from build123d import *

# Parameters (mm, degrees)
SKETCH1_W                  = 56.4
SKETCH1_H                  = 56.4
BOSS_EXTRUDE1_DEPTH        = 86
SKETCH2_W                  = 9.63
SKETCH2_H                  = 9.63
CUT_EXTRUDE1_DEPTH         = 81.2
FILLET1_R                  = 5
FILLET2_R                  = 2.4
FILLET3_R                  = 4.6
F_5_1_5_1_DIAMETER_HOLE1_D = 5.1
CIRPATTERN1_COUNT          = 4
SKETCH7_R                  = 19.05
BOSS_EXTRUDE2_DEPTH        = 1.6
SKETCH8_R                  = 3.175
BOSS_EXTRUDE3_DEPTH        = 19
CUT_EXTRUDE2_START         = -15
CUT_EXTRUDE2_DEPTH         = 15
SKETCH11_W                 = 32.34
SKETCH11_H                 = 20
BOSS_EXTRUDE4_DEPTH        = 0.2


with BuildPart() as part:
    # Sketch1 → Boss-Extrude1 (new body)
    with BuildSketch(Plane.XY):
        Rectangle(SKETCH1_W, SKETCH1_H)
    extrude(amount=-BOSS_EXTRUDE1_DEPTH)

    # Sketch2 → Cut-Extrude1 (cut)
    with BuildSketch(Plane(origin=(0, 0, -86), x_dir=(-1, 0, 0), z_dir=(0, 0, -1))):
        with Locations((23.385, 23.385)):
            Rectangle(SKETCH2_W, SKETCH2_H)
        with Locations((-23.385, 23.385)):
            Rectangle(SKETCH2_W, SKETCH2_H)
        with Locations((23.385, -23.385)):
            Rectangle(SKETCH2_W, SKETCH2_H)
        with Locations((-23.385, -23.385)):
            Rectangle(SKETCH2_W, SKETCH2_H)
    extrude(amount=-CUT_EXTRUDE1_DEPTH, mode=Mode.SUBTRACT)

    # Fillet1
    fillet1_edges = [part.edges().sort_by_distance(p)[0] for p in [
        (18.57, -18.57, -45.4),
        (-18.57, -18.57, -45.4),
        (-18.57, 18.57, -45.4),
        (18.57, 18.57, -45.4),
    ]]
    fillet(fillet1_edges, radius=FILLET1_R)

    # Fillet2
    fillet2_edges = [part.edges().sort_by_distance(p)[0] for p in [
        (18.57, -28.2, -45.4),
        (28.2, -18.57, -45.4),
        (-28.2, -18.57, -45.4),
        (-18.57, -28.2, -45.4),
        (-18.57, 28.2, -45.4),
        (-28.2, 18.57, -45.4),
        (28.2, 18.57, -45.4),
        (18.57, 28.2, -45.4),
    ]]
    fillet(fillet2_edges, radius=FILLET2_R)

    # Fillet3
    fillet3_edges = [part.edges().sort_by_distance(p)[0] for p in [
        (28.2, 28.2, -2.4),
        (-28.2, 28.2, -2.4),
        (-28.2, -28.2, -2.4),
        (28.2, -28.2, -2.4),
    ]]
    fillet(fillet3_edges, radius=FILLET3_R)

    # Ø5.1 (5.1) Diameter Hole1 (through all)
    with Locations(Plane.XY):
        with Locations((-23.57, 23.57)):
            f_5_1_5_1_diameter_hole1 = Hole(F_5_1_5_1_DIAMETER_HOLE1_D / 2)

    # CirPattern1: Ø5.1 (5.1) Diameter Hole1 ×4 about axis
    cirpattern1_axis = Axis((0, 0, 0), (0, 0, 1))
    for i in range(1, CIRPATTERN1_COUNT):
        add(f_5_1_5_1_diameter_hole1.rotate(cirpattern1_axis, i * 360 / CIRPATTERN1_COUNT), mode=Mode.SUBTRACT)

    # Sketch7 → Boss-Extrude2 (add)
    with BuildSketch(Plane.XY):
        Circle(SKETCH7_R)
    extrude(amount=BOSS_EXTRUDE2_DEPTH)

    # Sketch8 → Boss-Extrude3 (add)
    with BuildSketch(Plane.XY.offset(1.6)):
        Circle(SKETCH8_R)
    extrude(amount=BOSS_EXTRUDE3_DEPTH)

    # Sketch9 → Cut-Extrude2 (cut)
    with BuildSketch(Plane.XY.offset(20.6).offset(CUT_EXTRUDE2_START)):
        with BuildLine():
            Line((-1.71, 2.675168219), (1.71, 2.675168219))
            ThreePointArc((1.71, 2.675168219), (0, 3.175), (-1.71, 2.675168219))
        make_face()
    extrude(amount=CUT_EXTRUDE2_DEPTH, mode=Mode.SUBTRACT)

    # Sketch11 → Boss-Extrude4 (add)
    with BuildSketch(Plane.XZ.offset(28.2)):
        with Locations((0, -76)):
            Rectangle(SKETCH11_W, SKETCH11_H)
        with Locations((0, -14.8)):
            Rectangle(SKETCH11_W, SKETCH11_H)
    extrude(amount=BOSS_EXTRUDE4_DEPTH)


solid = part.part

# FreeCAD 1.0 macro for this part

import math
import FreeCAD as App
import Part
import Sketcher

V = App.Vector
Q = App.Units.Quantity


def edges_at(feature, points):
    """Names of the edges that pass closest to the given points."""
    edges = feature.Shape.Edges
    near = lambda p: min(range(len(edges)), key=lambda i: edges[i].distToShape(Part.Vertex(*p))[0])
    return sorted({f"Edge{near(p) + 1}" for p in points})


def add_polygon(sketch, points):
    """Adds a closed chain of lines whose ends are joined by coincident constraints."""
    first, n = sketch.GeometryCount, len(points)
    for a, b in zip(points, points[1:] + points[:1]):
        sketch.addGeometry(Part.LineSegment(App.Vector(*a, 0), App.Vector(*b, 0)), False)
    for i in range(n):
        sketch.addConstraint(Sketcher.Constraint("Coincident", first + i, 2, first + (i + 1) % n, 1))

doc = App.newDocument("Part")
params = doc.addObject("Spreadsheet::Sheet", "Params")
for row, (alias, value) in enumerate([
    ("sketch1_width", "56.4 mm"),
    ("pad1_length", "86 mm"),
    ("sketch2_width", "9.63 mm"),
    ("pocket1_length", "81.2 mm"),
    ("fillet_radius", "5 mm"),
    ("fillet2_radius", "2.4 mm"),
    ("fillet3_radius", "4.6 mm"),
    ("sketch3_diameter", "5.1 mm"),
    ("hole_diameter", "5.1 mm"),
    ("sketch4_diameter", "38.1 mm"),
    ("pad2_length", "1.6 mm"),
    ("sketch5_diameter", "6.35 mm"),
    ("pad3_length", "19 mm"),
    ("sketch6_width", "3.42 mm"),
    ("pocket2_length", "15 mm"),
    ("sketch7_height", "20 mm"),
    ("sketch7_width", "32.34 mm"),
    ("pad4_length", "0.2 mm"),
], start=1):
    params.set(f"A{row}", alias)
    params.set(f"B{row}", "=" + value)
    params.setAlias(f"B{row}", alias)

body = doc.addObject("PartDesign::Body", "Body")

sketch1 = body.newObject("Sketcher::SketchObject", "Sketch")
sketch1.AttachmentSupport = (doc.getObject("XY_Plane"), [""])
sketch1.MapMode = "FlatFace"
add_polygon(sketch1, [(-28, 28), (-28, -28), (28, -28), (28, 28)])
sketch1.addConstraint(Sketcher.Constraint("Vertical", 0))
sketch1.addConstraint(Sketcher.Constraint("Horizontal", 1))
sketch1.addConstraint(Sketcher.Constraint("Vertical", 2))
sketch1.addConstraint(Sketcher.Constraint("Horizontal", 3))
sketch1.addConstraint(Sketcher.Constraint("Symmetric", 0, 2, 2, 2, -1, 1))
sketch1.addConstraint(Sketcher.Constraint("Equal", 3, 0))
sketch1.addConstraint(Sketcher.Constraint("DistanceX", 1, 1, 1, 2, Q("56.4 mm")))
sketch1.setExpression("Constraints[10]", "Params.sketch1_width")
pad1 = body.newObject("PartDesign::Pad", "Pad")
pad1.Profile = sketch1
pad1.setExpression("Length", "Params.pad1_length")
pad1.Reversed = True

sketch2 = body.newObject("Sketcher::SketchObject", "Sketch001")
sketch2.AttachmentSupport = (doc.getObject("XY_Plane"), [""])
sketch2.MapMode = "FlatFace"
sketch2.AttachmentOffset = App.Placement(V(0, 0, -86), App.Rotation())
add_polygon(sketch2, [(-19, 28), (-19, 19), (-28, 19), (-28, 28)])
add_polygon(sketch2, [(28, 28), (28, 19), (19, 19), (19, 28)])
add_polygon(sketch2, [(-19, -19), (-19, -28), (-28, -28), (-28, -19)])
add_polygon(sketch2, [(28, -19), (28, -28), (19, -28), (19, -19)])
sketch2.addConstraint(Sketcher.Constraint("Vertical", 0))
sketch2.addConstraint(Sketcher.Constraint("Horizontal", 1))
sketch2.addConstraint(Sketcher.Constraint("Vertical", 2))
sketch2.addConstraint(Sketcher.Constraint("Horizontal", 3))
sketch2.addConstraint(Sketcher.Constraint("Vertical", 4))
sketch2.addConstraint(Sketcher.Constraint("Horizontal", 5))
sketch2.addConstraint(Sketcher.Constraint("Vertical", 6))
sketch2.addConstraint(Sketcher.Constraint("Horizontal", 7))
sketch2.addConstraint(Sketcher.Constraint("Vertical", 8))
sketch2.addConstraint(Sketcher.Constraint("Horizontal", 9))
sketch2.addConstraint(Sketcher.Constraint("Vertical", 10))
sketch2.addConstraint(Sketcher.Constraint("Horizontal", 11))
sketch2.addConstraint(Sketcher.Constraint("Vertical", 12))
sketch2.addConstraint(Sketcher.Constraint("Horizontal", 13))
sketch2.addConstraint(Sketcher.Constraint("Vertical", 14))
sketch2.addConstraint(Sketcher.Constraint("Horizontal", 15))
sketch2.addConstraint(Sketcher.Constraint("Symmetric", 6, 2, 8, 2, -1, 1))
sketch2.addConstraint(Sketcher.Constraint("Symmetric", 4, 2, 10, 2, -1, 1))
sketch2.addConstraint(Sketcher.Constraint("Symmetric", 2, 2, 12, 2, -1, 1))
sketch2.addConstraint(Sketcher.Constraint("Symmetric", 0, 2, 14, 2, -1, 1))
sketch2.addConstraint(Sketcher.Constraint("Symmetric", 1, 2, 4, 2, -2))
sketch2.addConstraint(Sketcher.Constraint("Symmetric", 3, 2, 6, 2, -2))
sketch2.addConstraint(Sketcher.Constraint("Equal", 15, 0))
sketch2.addConstraint(Sketcher.Constraint("DistanceX", 1, 2, 1, 1, Q("9.63 mm")))
sketch2.addConstraint(Sketcher.Constraint("DistanceX", 1, 2, -1, 1, Q("28.2 mm")))
sketch2.addConstraint(Sketcher.Constraint("DistanceY", -1, 1, 2, 2, Q("28.2 mm")))
sketch2.setExpression("Constraints[39]", "Params.sketch2_width")
pocket1 = body.newObject("PartDesign::Pocket", "Pocket")
pocket1.Profile = sketch2
pocket1.setExpression("Length", "Params.pocket1_length")
pocket1.Reversed = True
doc.recompute()

fillet = body.newObject("PartDesign::Fillet", "Fillet")
fillet.Base = (pocket1, edges_at(pocket1, [
    (18.57, -18.57, -45.4),
    (-18.57, -18.57, -45.4),
    (-18.57, 18.57, -45.4),
    (18.57, 18.57, -45.4),
]))
fillet.setExpression("Radius", "Params.fillet_radius")
doc.recompute()

fillet2 = body.newObject("PartDesign::Fillet", "Fillet001")
fillet2.Base = (fillet, edges_at(fillet, [
    (18.57, -28.2, -45.4),
    (28.2, -18.57, -45.4),
    (-28.2, -18.57, -45.4),
    (-18.57, -28.2, -45.4),
    (-18.57, 28.2, -45.4),
    (-28.2, 18.57, -45.4),
    (28.2, 18.57, -45.4),
    (18.57, 28.2, -45.4),
]))
fillet2.setExpression("Radius", "Params.fillet2_radius")
doc.recompute()

fillet3 = body.newObject("PartDesign::Fillet", "Fillet002")
fillet3.Base = (fillet2, edges_at(fillet2, [
    (28.2, 28.2, -2.4),
    (-28.2, 28.2, -2.4),
    (-28.2, -28.2, -2.4),
    (28.2, -28.2, -2.4),
]))
fillet3.setExpression("Radius", "Params.fillet3_radius")

sketch3 = body.newObject("Sketcher::SketchObject", "Sketch002")
sketch3.AttachmentSupport = (doc.getObject("XY_Plane"), [""])
sketch3.MapMode = "FlatFace"
sketch3.addGeometry(Part.Circle(V(-23.6, 23.6, 0), V(0, 0, 1), 2.5), False)
sketch3.addConstraint(Sketcher.Constraint("Diameter", 0, Q("5.1 mm")))
sketch3.addConstraint(Sketcher.Constraint("DistanceX", 0, 3, -1, 1, Q("23.57 mm")))
sketch3.addConstraint(Sketcher.Constraint("DistanceY", -1, 1, 0, 3, Q("23.57 mm")))
sketch3.setExpression("Constraints[0]", "Params.sketch3_diameter")
doc.recompute()
hole = body.newObject("PartDesign::Hole", "Hole")
hole.Profile = sketch3
hole.ThreadType = "None"
hole.setExpression("Diameter", "Params.hole_diameter")
hole.DepthType = "ThroughAll"
doc.recompute()

polarpattern = body.newObject("PartDesign::PolarPattern", "PolarPattern")
polarpattern.Originals = [hole]
polarpattern.Axis = (doc.getObject("Z_Axis"), [""])
polarpattern.Angle = 360
polarpattern.Occurrences = 4
body.Tip = polarpattern

sketch4 = body.newObject("Sketcher::SketchObject", "Sketch003")
sketch4.AttachmentSupport = (doc.getObject("XY_Plane"), [""])
sketch4.MapMode = "FlatFace"
sketch4.addGeometry(Part.Circle(V(0, 0, 0), V(0, 0, 1), 19), False)
sketch4.addConstraint(Sketcher.Constraint("Coincident", 0, 3, -1, 1))
sketch4.addConstraint(Sketcher.Constraint("Diameter", 0, Q("38.1 mm")))
sketch4.setExpression("Constraints[1]", "Params.sketch4_diameter")
pad2 = body.newObject("PartDesign::Pad", "Pad001")
pad2.Profile = sketch4
pad2.setExpression("Length", "Params.pad2_length")

sketch5 = body.newObject("Sketcher::SketchObject", "Sketch004")
sketch5.AttachmentSupport = (doc.getObject("XY_Plane"), [""])
sketch5.MapMode = "FlatFace"
sketch5.AttachmentOffset = App.Placement(V(0, 0, 1.6), App.Rotation())
sketch5.addGeometry(Part.Circle(V(0, 0, 0), V(0, 0, 1), 3.2), False)
sketch5.addConstraint(Sketcher.Constraint("Coincident", 0, 3, -1, 1))
sketch5.addConstraint(Sketcher.Constraint("Diameter", 0, Q("6.35 mm")))
sketch5.setExpression("Constraints[1]", "Params.sketch5_diameter")
pad3 = body.newObject("PartDesign::Pad", "Pad002")
pad3.Profile = sketch5
pad3.setExpression("Length", "Params.pad3_length")

sketch6 = body.newObject("Sketcher::SketchObject", "Sketch005")
sketch6.AttachmentSupport = (doc.getObject("XY_Plane"), [""])
sketch6.MapMode = "FlatFace"
sketch6.AttachmentOffset = App.Placement(V(0, 0, 5.6), App.Rotation())
sketch6.addGeometry(Part.LineSegment(V(-1.7, 2.7, 0), V(1.7, 2.7, 0)), False)
sketch6.addGeometry(Part.ArcOfCircle(Part.Circle(V(0, 0, 0), V(0, 0, 1), 3.2), math.radians(57), math.radians(123)), False)
sketch6.addConstraint(Sketcher.Constraint("Coincident", 0, 1, 1, 2))
sketch6.addConstraint(Sketcher.Constraint("Coincident", 1, 1, 0, 2))
sketch6.addConstraint(Sketcher.Constraint("Horizontal", 0))
sketch6.addConstraint(Sketcher.Constraint("Coincident", 1, 3, -1, 1))
sketch6.addConstraint(Sketcher.Constraint("Radius", 1, Q("3.175 mm")))
sketch6.addConstraint(Sketcher.Constraint("DistanceX", 0, 1, 0, 2, Q("3.42 mm")))
sketch6.setExpression("Constraints[5]", "Params.sketch6_width")
pocket2 = body.newObject("PartDesign::Pocket", "Pocket001")
pocket2.Profile = sketch6
pocket2.setExpression("Length", "Params.pocket2_length")
pocket2.Reversed = True

sketch7 = body.newObject("Sketcher::SketchObject", "Sketch006")
sketch7.AttachmentSupport = (doc.getObject("XZ_Plane"), [""])
sketch7.MapMode = "FlatFace"
sketch7.AttachmentOffset = App.Placement(V(0, 0, 28.2), App.Rotation())
add_polygon(sketch7, [(-16, -66), (-16, -86), (16, -86), (16, -66)])
add_polygon(sketch7, [(-16, -5), (-16, -25), (16, -25), (16, -5)])
sketch7.addConstraint(Sketcher.Constraint("Vertical", 0))
sketch7.addConstraint(Sketcher.Constraint("Horizontal", 1))
sketch7.addConstraint(Sketcher.Constraint("Vertical", 2))
sketch7.addConstraint(Sketcher.Constraint("Horizontal", 3))
sketch7.addConstraint(Sketcher.Constraint("Vertical", 4))
sketch7.addConstraint(Sketcher.Constraint("Horizontal", 5))
sketch7.addConstraint(Sketcher.Constraint("Vertical", 6))
sketch7.addConstraint(Sketcher.Constraint("Horizontal", 7))
sketch7.addConstraint(Sketcher.Constraint("Vertical", 3, 2, 4, 2))
sketch7.addConstraint(Sketcher.Constraint("Vertical", 2, 2, 5, 2))
sketch7.addConstraint(Sketcher.Constraint("Equal", 2, 4))
sketch7.addConstraint(Sketcher.Constraint("DistanceY", 0, 2, 0, 1, Q("20 mm")))
sketch7.addConstraint(Sketcher.Constraint("DistanceY", 0, 2, -1, 1, Q("86 mm")))
sketch7.addConstraint(Sketcher.Constraint("DistanceX", 1, 1, 1, 2, Q("32.34 mm")))
sketch7.addConstraint(Sketcher.Constraint("DistanceY", 4, 2, -1, 1, Q("24.8 mm")))
sketch7.addConstraint(Sketcher.Constraint("DistanceX", 0, 2, -1, 1, Q("16.17 mm")))
sketch7.setExpression("Constraints[19]", "Params.sketch7_height")
sketch7.setExpression("Constraints[21]", "Params.sketch7_width")
pad4 = body.newObject("PartDesign::Pad", "Pad003")
pad4.Profile = sketch7
pad4.setExpression("Length", "Params.pad4_length")

doc.recompute()
